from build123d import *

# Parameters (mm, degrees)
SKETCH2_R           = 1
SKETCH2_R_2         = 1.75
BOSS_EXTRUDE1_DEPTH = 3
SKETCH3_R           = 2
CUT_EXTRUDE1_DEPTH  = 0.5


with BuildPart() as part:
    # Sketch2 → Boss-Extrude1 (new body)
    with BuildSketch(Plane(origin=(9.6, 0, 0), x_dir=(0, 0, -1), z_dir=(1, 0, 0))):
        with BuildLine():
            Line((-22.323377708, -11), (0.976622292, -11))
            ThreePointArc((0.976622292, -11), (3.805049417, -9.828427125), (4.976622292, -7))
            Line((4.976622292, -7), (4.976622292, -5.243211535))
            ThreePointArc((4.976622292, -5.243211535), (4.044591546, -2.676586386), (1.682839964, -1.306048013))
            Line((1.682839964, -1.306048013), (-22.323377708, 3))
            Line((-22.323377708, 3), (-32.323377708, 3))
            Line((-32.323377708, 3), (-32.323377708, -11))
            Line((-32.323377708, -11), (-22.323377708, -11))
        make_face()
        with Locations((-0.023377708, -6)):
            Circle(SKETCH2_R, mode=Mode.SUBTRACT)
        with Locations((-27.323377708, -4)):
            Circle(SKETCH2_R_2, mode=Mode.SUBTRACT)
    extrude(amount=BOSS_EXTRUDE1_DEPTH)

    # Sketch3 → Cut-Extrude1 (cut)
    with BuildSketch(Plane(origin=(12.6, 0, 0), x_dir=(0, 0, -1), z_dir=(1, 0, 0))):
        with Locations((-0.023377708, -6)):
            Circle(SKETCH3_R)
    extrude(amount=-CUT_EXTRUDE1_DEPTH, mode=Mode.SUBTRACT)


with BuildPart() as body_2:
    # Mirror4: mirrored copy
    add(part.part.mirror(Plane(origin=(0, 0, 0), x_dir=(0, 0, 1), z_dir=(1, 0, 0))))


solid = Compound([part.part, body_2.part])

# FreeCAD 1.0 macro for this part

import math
import FreeCAD as App
import Part
import Sketcher
from FreeCAD import Vector
Q = App.Units.Quantity

doc = App.newDocument("Part")
params = doc.addObject("Spreadsheet::Sheet", "Params")
for row, (alias, value) in enumerate([
    ("sketch1_diameter", "2 mm"),
    ("sketch1_radius", "4 mm"),
    ("sketch1_diameter2", "3.5 mm"),
    ("sketch1_width", "14 mm"),
    ("sketch1_height", "10 mm"),
    ("pad1_length", "3 mm"),
    ("sketch2_diameter", "4 mm"),
    ("pocket1_length", "0.5 mm"),
], start=1):
    params.set(f"A{row}", alias)
    params.set(f"B{row}", "=" + value)
    params.setAlias(f"B{row}", alias)

body = doc.addObject("PartDesign::Body", "Body")

sketch1 = doc.addObject("Sketcher::SketchObject", "Sketch")
body.addObject(sketch1)
sketch1.AttachmentSupport = (doc.YZ_Plane, [""])
sketch1.MapMode = "FlatFace"
sketch1.AttachmentOffset = App.Placement(Vector(0, 0, 9.6), App.Rotation())
sketch1.addGeometry([
    Part.ArcOfCircle(Part.Circle(Vector(-7, -1, 0), Vector(0, 0, 1), 4), math.radians(180), math.radians(270)),
    Part.LineSegment(Vector(-7, -5, 0), Vector(-5.2, -5, 0)),
    Part.ArcOfCircle(Part.Circle(Vector(-5.2, -1, 0), Vector(0, 0, 1), 4), math.radians(-90), math.radians(-10)),
    Part.LineSegment(Vector(-1.3, -1.7, 0), Vector(3, 22.3, 0)),
    Part.LineSegment(Vector(3, 22.3, 0), Vector(3, 32.3, 0)),
    Part.LineSegment(Vector(3, 32.3, 0), Vector(-11, 32.3, 0)),
    Part.LineSegment(Vector(-11, 32.3, 0), Vector(-11, -1, 0)),
    Part.Circle(Vector(-6, 0, 0), Vector(0, 0, 1), 1),
    Part.Circle(Vector(-4, 27.3, 0), Vector(0, 0, 1), 1.8),
], False)
sketch1.addConstraint([
    Sketcher.Constraint("Tangent", 0, 2, 1, 1),
    Sketcher.Constraint("Tangent", 1, 2, 2, 1),
    Sketcher.Constraint("Tangent", 2, 2, 3, 1),
    Sketcher.Constraint("Coincident", 3, 2, 4, 1),
    Sketcher.Constraint("Coincident", 4, 2, 5, 1),
    Sketcher.Constraint("Coincident", 5, 2, 6, 1),
    Sketcher.Constraint("Tangent", 6, 2, 0, 1),
    Sketcher.Constraint("Horizontal", 1),
    Sketcher.Constraint("Vertical", 4),
    Sketcher.Constraint("Horizontal", 5),
    Sketcher.Constraint("Vertical", 6),
    Sketcher.Constraint("Equal", 0, 2),
    Sketcher.Constraint("Diameter", 7, Q("2 mm")),
    Sketcher.Constraint("Radius", 0, Q("4 mm")),
    Sketcher.Constraint("Diameter", 8, Q("3.5 mm")),
    Sketcher.Constraint("DistanceX", 5, 2, 5, 1, Q("14 mm")),
    Sketcher.Constraint("DistanceY", 4, 1, 4, 2, Q("10 mm")),
    Sketcher.Constraint("DistanceY", 6, 2, 6, 1, Q("33.3 mm")),
    Sketcher.Constraint("DistanceX", 0, 3, -1, 1, Q("7 mm")),
    Sketcher.Constraint("DistanceX", 7, 3, -1, 1, Q("6 mm")),
    Sketcher.Constraint("DistanceX", 8, 3, -1, 1, Q("4 mm")),
    Sketcher.Constraint("DistanceY", 2, 3, 7, 3, Q("1 mm")),
    Sketcher.Constraint("DistanceY", 3, 2, 8, 3, Q("5 mm")),
    Sketcher.Constraint("DistanceX", 1, 1, 1, 2, Q("1.756788 mm")),
    Sketcher.Constraint("DistanceY", 2, 2, -1, 1, Q("1.68284 mm")),
])
sketch1.setExpression("Constraints[12]", "Params.sketch1_diameter")
sketch1.setExpression("Constraints[13]", "Params.sketch1_radius")
sketch1.setExpression("Constraints[14]", "Params.sketch1_diameter2")
sketch1.setExpression("Constraints[15]", "Params.sketch1_width")
sketch1.setExpression("Constraints[16]", "Params.sketch1_height")
pad1 = doc.addObject("PartDesign::Pad", "Pad")
body.addObject(pad1)
pad1.Profile = sketch1
pad1.setExpression("Length", "Params.pad1_length")

sketch2 = doc.addObject("Sketcher::SketchObject", "Sketch001")
body.addObject(sketch2)
sketch2.AttachmentSupport = (doc.YZ_Plane, [""])
sketch2.MapMode = "FlatFace"
sketch2.AttachmentOffset = App.Placement(Vector(0, 0, 12.6), App.Rotation())
sketch2.addGeometry(Part.Circle(Vector(-6, 0, 0), Vector(0, 0, 1), 2), False)
sketch2.addConstraint([
    Sketcher.Constraint("Diameter", 0, Q("4 mm")),
    Sketcher.Constraint("DistanceX", 0, 3, -1, 1, Q("6 mm")),
    Sketcher.Constraint("DistanceY", -1, 1, 0, 3, Q("0.023378 mm")),
])
sketch2.setExpression("Constraints[0]", "Params.sketch2_diameter")
pocket1 = doc.addObject("PartDesign::Pocket", "Pocket")
body.addObject(pocket1)
pocket1.Profile = sketch2
pocket1.setExpression("Length", "Params.pocket1_length")
body2 = doc.addObject("PartDesign::Body", "Body001")
doc.recompute()

mirroring = doc.addObject("Part::Mirroring", "Mirroring")
mirroring.Source = body
mirroring.Base = Vector(0, 0, 0)
mirroring.Normal = Vector(1, 0, 0)
body2.BaseFeature = mirroring
doc.recompute()
mirroring.Visibility = False

doc.recompute()
